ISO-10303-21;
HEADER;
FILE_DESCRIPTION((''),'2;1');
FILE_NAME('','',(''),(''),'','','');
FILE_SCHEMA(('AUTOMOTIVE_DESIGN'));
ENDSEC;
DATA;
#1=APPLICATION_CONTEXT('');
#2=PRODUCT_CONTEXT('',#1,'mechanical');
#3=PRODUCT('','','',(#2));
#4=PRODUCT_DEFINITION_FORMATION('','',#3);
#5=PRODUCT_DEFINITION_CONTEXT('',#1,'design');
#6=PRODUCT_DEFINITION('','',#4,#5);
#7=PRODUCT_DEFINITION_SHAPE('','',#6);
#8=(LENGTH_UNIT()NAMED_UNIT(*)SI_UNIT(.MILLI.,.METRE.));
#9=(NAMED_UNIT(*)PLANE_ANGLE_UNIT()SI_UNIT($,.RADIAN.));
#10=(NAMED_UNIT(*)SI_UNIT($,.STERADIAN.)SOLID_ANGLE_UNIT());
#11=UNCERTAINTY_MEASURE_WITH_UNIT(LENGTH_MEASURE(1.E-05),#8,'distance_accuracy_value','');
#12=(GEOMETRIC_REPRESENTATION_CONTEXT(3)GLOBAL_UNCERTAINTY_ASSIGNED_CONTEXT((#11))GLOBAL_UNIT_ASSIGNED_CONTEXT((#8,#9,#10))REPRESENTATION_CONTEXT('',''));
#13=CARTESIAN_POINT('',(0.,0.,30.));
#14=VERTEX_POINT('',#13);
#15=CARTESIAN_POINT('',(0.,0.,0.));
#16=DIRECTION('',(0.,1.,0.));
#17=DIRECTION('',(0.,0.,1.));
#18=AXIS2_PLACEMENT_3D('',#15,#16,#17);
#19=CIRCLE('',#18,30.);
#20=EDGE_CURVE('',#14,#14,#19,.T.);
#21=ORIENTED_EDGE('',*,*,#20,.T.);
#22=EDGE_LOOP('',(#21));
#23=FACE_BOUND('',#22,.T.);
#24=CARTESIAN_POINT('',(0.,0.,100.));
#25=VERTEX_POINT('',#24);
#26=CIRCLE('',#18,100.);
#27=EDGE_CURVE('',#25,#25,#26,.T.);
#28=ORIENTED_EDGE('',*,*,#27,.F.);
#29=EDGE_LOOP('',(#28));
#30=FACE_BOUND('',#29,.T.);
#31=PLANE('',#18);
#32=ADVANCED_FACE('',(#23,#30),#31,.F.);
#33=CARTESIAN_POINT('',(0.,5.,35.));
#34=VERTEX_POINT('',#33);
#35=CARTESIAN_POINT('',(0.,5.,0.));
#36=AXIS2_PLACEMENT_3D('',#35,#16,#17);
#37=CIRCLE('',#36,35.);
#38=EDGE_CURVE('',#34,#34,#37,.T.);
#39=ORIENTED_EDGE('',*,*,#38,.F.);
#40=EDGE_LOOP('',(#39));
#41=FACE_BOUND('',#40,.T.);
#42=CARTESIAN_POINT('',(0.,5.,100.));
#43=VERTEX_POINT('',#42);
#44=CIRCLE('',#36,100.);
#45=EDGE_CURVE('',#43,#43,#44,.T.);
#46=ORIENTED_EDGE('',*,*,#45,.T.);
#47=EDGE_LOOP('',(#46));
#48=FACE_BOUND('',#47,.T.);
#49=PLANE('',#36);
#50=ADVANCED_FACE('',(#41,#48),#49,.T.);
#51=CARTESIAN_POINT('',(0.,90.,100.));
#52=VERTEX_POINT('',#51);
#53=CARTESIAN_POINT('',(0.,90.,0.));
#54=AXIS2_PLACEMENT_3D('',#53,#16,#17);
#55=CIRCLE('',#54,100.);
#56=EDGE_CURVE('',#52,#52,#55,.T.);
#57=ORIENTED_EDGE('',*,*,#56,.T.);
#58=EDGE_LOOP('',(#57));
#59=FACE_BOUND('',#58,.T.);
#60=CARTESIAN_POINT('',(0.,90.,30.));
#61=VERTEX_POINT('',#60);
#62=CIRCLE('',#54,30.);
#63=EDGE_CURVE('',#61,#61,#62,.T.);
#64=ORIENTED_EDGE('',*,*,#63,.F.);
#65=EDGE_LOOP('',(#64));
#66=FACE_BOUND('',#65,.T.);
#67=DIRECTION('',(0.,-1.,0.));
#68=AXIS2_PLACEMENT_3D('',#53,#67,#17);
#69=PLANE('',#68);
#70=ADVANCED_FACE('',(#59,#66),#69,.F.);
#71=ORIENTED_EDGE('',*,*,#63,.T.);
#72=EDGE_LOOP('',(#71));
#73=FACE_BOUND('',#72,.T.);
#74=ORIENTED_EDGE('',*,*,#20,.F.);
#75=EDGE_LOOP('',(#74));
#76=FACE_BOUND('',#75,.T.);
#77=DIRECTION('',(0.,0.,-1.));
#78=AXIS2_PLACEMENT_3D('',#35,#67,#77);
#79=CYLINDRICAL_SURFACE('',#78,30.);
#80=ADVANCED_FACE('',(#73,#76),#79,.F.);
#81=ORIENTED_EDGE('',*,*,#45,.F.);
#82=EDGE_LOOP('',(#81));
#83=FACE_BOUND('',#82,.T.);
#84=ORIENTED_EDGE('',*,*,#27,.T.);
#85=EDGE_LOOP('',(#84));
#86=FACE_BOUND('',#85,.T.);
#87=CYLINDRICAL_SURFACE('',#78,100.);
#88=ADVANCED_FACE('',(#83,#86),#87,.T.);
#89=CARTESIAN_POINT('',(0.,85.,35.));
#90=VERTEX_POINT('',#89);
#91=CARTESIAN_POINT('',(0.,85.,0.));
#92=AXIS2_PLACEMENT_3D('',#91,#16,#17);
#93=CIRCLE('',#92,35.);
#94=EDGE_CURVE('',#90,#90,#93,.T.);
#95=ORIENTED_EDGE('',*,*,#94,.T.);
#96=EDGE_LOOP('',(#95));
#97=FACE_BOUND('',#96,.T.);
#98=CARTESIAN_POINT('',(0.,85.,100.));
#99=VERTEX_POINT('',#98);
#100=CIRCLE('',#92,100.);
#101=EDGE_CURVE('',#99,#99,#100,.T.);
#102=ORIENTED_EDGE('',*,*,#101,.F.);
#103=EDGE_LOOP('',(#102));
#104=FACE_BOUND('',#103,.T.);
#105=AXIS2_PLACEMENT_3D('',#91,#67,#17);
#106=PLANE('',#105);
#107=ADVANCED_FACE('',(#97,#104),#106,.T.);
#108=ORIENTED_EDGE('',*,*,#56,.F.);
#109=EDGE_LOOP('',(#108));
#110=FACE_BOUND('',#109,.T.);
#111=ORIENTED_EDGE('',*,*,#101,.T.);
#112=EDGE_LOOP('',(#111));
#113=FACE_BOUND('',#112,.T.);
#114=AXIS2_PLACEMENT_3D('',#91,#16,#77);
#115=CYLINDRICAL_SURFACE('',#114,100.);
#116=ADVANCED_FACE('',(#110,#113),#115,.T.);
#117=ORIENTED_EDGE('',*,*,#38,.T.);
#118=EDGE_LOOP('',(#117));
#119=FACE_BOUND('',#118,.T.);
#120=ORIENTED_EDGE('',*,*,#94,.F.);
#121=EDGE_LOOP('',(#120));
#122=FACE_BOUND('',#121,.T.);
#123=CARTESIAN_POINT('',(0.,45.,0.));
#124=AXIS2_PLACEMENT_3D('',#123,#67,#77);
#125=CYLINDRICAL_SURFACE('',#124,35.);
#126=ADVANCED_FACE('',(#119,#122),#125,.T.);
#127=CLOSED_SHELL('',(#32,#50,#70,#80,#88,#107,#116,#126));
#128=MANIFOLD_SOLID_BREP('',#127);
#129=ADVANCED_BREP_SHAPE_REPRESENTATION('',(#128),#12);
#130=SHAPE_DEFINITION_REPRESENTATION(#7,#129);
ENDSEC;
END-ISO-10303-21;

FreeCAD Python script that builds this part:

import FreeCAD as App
import Part
import Sketcher
Q = App.Units.Quantity

doc = App.newDocument("Part")
body = doc.addObject("PartDesign::Body", "Body")

sketch1 = body.newObject("Sketcher::SketchObject", "Sketch")
sketch1.AttachmentSupport = (doc.getObject("XZ_Plane"), [""])
sketch1.MapMode = "FlatFace"
sketch1.addGeometry(Part.Circle(App.Vector(0, 0, 0), App.Vector(0, 0, 1), 100), False)
sketch1.addGeometry(Part.Circle(App.Vector(0, 0, 0), App.Vector(0, 0, 1), 30), False)
sketch1.addConstraint(Sketcher.Constraint("Coincident", 0, 3, -1, 1))
sketch1.addConstraint(Sketcher.Constraint("Coincident", 1, 3, -1, 1))
sketch1.addConstraint(Sketcher.Constraint("Diameter", 0, Q("200 mm")))
sketch1.addConstraint(Sketcher.Constraint("Diameter", 1, Q("60 mm")))
pad1 = body.newObject("PartDesign::Pad", "Pad")
pad1.Profile = sketch1
pad1.Length = 5
pad1.Reversed = True

sketch2 = body.newObject("Sketcher::SketchObject", "Sketch001")
sketch2.AttachmentSupport = (doc.getObject("XZ_Plane"), [""])
sketch2.MapMode = "FlatFace"
sketch2.AttachmentOffset = App.Placement(App.Vector(0, 0, -5), App.Rotation())
sketch2.addGeometry(Part.Circle(App.Vector(0, 0, 0), App.Vector(0, 0, 1), 35), False)
sketch2.addGeometry(Part.Circle(App.Vector(0, 0, 0), App.Vector(0, 0, 1), 30), False)
sketch2.addConstraint(Sketcher.Constraint("Coincident", 0, 3, -1, 1))
sketch2.addConstraint(Sketcher.Constraint("Coincident", 1, 3, -1, 1))
sketch2.addConstraint(Sketcher.Constraint("Diameter", 0, Q("70 mm")))
sketch2.addConstraint(Sketcher.Constraint("Diameter", 1, Q("60 mm")))
pad2 = body.newObject("PartDesign::Pad", "Pad001")
pad2.Profile = sketch2
pad2.Length = 40
pad2.Reversed = True
doc.recompute()

datumplane = body.newObject("PartDesign::Plane", "DatumPlane")
datumplane.AttachmentSupport = (doc.getObject("XZ_Plane"), [""])
datumplane.MapMode = "FlatFace"
datumplane.AttachmentOffset = App.Placement(App.Vector(0, 0, -45), App.Rotation())
mirrored = body.newObject("PartDesign::Mirrored", "Mirrored")
mirrored.Originals = [pad1, pad2]
mirrored.MirrorPlane = (datumplane, [""])
body.Tip = mirrored

doc.recompute()
